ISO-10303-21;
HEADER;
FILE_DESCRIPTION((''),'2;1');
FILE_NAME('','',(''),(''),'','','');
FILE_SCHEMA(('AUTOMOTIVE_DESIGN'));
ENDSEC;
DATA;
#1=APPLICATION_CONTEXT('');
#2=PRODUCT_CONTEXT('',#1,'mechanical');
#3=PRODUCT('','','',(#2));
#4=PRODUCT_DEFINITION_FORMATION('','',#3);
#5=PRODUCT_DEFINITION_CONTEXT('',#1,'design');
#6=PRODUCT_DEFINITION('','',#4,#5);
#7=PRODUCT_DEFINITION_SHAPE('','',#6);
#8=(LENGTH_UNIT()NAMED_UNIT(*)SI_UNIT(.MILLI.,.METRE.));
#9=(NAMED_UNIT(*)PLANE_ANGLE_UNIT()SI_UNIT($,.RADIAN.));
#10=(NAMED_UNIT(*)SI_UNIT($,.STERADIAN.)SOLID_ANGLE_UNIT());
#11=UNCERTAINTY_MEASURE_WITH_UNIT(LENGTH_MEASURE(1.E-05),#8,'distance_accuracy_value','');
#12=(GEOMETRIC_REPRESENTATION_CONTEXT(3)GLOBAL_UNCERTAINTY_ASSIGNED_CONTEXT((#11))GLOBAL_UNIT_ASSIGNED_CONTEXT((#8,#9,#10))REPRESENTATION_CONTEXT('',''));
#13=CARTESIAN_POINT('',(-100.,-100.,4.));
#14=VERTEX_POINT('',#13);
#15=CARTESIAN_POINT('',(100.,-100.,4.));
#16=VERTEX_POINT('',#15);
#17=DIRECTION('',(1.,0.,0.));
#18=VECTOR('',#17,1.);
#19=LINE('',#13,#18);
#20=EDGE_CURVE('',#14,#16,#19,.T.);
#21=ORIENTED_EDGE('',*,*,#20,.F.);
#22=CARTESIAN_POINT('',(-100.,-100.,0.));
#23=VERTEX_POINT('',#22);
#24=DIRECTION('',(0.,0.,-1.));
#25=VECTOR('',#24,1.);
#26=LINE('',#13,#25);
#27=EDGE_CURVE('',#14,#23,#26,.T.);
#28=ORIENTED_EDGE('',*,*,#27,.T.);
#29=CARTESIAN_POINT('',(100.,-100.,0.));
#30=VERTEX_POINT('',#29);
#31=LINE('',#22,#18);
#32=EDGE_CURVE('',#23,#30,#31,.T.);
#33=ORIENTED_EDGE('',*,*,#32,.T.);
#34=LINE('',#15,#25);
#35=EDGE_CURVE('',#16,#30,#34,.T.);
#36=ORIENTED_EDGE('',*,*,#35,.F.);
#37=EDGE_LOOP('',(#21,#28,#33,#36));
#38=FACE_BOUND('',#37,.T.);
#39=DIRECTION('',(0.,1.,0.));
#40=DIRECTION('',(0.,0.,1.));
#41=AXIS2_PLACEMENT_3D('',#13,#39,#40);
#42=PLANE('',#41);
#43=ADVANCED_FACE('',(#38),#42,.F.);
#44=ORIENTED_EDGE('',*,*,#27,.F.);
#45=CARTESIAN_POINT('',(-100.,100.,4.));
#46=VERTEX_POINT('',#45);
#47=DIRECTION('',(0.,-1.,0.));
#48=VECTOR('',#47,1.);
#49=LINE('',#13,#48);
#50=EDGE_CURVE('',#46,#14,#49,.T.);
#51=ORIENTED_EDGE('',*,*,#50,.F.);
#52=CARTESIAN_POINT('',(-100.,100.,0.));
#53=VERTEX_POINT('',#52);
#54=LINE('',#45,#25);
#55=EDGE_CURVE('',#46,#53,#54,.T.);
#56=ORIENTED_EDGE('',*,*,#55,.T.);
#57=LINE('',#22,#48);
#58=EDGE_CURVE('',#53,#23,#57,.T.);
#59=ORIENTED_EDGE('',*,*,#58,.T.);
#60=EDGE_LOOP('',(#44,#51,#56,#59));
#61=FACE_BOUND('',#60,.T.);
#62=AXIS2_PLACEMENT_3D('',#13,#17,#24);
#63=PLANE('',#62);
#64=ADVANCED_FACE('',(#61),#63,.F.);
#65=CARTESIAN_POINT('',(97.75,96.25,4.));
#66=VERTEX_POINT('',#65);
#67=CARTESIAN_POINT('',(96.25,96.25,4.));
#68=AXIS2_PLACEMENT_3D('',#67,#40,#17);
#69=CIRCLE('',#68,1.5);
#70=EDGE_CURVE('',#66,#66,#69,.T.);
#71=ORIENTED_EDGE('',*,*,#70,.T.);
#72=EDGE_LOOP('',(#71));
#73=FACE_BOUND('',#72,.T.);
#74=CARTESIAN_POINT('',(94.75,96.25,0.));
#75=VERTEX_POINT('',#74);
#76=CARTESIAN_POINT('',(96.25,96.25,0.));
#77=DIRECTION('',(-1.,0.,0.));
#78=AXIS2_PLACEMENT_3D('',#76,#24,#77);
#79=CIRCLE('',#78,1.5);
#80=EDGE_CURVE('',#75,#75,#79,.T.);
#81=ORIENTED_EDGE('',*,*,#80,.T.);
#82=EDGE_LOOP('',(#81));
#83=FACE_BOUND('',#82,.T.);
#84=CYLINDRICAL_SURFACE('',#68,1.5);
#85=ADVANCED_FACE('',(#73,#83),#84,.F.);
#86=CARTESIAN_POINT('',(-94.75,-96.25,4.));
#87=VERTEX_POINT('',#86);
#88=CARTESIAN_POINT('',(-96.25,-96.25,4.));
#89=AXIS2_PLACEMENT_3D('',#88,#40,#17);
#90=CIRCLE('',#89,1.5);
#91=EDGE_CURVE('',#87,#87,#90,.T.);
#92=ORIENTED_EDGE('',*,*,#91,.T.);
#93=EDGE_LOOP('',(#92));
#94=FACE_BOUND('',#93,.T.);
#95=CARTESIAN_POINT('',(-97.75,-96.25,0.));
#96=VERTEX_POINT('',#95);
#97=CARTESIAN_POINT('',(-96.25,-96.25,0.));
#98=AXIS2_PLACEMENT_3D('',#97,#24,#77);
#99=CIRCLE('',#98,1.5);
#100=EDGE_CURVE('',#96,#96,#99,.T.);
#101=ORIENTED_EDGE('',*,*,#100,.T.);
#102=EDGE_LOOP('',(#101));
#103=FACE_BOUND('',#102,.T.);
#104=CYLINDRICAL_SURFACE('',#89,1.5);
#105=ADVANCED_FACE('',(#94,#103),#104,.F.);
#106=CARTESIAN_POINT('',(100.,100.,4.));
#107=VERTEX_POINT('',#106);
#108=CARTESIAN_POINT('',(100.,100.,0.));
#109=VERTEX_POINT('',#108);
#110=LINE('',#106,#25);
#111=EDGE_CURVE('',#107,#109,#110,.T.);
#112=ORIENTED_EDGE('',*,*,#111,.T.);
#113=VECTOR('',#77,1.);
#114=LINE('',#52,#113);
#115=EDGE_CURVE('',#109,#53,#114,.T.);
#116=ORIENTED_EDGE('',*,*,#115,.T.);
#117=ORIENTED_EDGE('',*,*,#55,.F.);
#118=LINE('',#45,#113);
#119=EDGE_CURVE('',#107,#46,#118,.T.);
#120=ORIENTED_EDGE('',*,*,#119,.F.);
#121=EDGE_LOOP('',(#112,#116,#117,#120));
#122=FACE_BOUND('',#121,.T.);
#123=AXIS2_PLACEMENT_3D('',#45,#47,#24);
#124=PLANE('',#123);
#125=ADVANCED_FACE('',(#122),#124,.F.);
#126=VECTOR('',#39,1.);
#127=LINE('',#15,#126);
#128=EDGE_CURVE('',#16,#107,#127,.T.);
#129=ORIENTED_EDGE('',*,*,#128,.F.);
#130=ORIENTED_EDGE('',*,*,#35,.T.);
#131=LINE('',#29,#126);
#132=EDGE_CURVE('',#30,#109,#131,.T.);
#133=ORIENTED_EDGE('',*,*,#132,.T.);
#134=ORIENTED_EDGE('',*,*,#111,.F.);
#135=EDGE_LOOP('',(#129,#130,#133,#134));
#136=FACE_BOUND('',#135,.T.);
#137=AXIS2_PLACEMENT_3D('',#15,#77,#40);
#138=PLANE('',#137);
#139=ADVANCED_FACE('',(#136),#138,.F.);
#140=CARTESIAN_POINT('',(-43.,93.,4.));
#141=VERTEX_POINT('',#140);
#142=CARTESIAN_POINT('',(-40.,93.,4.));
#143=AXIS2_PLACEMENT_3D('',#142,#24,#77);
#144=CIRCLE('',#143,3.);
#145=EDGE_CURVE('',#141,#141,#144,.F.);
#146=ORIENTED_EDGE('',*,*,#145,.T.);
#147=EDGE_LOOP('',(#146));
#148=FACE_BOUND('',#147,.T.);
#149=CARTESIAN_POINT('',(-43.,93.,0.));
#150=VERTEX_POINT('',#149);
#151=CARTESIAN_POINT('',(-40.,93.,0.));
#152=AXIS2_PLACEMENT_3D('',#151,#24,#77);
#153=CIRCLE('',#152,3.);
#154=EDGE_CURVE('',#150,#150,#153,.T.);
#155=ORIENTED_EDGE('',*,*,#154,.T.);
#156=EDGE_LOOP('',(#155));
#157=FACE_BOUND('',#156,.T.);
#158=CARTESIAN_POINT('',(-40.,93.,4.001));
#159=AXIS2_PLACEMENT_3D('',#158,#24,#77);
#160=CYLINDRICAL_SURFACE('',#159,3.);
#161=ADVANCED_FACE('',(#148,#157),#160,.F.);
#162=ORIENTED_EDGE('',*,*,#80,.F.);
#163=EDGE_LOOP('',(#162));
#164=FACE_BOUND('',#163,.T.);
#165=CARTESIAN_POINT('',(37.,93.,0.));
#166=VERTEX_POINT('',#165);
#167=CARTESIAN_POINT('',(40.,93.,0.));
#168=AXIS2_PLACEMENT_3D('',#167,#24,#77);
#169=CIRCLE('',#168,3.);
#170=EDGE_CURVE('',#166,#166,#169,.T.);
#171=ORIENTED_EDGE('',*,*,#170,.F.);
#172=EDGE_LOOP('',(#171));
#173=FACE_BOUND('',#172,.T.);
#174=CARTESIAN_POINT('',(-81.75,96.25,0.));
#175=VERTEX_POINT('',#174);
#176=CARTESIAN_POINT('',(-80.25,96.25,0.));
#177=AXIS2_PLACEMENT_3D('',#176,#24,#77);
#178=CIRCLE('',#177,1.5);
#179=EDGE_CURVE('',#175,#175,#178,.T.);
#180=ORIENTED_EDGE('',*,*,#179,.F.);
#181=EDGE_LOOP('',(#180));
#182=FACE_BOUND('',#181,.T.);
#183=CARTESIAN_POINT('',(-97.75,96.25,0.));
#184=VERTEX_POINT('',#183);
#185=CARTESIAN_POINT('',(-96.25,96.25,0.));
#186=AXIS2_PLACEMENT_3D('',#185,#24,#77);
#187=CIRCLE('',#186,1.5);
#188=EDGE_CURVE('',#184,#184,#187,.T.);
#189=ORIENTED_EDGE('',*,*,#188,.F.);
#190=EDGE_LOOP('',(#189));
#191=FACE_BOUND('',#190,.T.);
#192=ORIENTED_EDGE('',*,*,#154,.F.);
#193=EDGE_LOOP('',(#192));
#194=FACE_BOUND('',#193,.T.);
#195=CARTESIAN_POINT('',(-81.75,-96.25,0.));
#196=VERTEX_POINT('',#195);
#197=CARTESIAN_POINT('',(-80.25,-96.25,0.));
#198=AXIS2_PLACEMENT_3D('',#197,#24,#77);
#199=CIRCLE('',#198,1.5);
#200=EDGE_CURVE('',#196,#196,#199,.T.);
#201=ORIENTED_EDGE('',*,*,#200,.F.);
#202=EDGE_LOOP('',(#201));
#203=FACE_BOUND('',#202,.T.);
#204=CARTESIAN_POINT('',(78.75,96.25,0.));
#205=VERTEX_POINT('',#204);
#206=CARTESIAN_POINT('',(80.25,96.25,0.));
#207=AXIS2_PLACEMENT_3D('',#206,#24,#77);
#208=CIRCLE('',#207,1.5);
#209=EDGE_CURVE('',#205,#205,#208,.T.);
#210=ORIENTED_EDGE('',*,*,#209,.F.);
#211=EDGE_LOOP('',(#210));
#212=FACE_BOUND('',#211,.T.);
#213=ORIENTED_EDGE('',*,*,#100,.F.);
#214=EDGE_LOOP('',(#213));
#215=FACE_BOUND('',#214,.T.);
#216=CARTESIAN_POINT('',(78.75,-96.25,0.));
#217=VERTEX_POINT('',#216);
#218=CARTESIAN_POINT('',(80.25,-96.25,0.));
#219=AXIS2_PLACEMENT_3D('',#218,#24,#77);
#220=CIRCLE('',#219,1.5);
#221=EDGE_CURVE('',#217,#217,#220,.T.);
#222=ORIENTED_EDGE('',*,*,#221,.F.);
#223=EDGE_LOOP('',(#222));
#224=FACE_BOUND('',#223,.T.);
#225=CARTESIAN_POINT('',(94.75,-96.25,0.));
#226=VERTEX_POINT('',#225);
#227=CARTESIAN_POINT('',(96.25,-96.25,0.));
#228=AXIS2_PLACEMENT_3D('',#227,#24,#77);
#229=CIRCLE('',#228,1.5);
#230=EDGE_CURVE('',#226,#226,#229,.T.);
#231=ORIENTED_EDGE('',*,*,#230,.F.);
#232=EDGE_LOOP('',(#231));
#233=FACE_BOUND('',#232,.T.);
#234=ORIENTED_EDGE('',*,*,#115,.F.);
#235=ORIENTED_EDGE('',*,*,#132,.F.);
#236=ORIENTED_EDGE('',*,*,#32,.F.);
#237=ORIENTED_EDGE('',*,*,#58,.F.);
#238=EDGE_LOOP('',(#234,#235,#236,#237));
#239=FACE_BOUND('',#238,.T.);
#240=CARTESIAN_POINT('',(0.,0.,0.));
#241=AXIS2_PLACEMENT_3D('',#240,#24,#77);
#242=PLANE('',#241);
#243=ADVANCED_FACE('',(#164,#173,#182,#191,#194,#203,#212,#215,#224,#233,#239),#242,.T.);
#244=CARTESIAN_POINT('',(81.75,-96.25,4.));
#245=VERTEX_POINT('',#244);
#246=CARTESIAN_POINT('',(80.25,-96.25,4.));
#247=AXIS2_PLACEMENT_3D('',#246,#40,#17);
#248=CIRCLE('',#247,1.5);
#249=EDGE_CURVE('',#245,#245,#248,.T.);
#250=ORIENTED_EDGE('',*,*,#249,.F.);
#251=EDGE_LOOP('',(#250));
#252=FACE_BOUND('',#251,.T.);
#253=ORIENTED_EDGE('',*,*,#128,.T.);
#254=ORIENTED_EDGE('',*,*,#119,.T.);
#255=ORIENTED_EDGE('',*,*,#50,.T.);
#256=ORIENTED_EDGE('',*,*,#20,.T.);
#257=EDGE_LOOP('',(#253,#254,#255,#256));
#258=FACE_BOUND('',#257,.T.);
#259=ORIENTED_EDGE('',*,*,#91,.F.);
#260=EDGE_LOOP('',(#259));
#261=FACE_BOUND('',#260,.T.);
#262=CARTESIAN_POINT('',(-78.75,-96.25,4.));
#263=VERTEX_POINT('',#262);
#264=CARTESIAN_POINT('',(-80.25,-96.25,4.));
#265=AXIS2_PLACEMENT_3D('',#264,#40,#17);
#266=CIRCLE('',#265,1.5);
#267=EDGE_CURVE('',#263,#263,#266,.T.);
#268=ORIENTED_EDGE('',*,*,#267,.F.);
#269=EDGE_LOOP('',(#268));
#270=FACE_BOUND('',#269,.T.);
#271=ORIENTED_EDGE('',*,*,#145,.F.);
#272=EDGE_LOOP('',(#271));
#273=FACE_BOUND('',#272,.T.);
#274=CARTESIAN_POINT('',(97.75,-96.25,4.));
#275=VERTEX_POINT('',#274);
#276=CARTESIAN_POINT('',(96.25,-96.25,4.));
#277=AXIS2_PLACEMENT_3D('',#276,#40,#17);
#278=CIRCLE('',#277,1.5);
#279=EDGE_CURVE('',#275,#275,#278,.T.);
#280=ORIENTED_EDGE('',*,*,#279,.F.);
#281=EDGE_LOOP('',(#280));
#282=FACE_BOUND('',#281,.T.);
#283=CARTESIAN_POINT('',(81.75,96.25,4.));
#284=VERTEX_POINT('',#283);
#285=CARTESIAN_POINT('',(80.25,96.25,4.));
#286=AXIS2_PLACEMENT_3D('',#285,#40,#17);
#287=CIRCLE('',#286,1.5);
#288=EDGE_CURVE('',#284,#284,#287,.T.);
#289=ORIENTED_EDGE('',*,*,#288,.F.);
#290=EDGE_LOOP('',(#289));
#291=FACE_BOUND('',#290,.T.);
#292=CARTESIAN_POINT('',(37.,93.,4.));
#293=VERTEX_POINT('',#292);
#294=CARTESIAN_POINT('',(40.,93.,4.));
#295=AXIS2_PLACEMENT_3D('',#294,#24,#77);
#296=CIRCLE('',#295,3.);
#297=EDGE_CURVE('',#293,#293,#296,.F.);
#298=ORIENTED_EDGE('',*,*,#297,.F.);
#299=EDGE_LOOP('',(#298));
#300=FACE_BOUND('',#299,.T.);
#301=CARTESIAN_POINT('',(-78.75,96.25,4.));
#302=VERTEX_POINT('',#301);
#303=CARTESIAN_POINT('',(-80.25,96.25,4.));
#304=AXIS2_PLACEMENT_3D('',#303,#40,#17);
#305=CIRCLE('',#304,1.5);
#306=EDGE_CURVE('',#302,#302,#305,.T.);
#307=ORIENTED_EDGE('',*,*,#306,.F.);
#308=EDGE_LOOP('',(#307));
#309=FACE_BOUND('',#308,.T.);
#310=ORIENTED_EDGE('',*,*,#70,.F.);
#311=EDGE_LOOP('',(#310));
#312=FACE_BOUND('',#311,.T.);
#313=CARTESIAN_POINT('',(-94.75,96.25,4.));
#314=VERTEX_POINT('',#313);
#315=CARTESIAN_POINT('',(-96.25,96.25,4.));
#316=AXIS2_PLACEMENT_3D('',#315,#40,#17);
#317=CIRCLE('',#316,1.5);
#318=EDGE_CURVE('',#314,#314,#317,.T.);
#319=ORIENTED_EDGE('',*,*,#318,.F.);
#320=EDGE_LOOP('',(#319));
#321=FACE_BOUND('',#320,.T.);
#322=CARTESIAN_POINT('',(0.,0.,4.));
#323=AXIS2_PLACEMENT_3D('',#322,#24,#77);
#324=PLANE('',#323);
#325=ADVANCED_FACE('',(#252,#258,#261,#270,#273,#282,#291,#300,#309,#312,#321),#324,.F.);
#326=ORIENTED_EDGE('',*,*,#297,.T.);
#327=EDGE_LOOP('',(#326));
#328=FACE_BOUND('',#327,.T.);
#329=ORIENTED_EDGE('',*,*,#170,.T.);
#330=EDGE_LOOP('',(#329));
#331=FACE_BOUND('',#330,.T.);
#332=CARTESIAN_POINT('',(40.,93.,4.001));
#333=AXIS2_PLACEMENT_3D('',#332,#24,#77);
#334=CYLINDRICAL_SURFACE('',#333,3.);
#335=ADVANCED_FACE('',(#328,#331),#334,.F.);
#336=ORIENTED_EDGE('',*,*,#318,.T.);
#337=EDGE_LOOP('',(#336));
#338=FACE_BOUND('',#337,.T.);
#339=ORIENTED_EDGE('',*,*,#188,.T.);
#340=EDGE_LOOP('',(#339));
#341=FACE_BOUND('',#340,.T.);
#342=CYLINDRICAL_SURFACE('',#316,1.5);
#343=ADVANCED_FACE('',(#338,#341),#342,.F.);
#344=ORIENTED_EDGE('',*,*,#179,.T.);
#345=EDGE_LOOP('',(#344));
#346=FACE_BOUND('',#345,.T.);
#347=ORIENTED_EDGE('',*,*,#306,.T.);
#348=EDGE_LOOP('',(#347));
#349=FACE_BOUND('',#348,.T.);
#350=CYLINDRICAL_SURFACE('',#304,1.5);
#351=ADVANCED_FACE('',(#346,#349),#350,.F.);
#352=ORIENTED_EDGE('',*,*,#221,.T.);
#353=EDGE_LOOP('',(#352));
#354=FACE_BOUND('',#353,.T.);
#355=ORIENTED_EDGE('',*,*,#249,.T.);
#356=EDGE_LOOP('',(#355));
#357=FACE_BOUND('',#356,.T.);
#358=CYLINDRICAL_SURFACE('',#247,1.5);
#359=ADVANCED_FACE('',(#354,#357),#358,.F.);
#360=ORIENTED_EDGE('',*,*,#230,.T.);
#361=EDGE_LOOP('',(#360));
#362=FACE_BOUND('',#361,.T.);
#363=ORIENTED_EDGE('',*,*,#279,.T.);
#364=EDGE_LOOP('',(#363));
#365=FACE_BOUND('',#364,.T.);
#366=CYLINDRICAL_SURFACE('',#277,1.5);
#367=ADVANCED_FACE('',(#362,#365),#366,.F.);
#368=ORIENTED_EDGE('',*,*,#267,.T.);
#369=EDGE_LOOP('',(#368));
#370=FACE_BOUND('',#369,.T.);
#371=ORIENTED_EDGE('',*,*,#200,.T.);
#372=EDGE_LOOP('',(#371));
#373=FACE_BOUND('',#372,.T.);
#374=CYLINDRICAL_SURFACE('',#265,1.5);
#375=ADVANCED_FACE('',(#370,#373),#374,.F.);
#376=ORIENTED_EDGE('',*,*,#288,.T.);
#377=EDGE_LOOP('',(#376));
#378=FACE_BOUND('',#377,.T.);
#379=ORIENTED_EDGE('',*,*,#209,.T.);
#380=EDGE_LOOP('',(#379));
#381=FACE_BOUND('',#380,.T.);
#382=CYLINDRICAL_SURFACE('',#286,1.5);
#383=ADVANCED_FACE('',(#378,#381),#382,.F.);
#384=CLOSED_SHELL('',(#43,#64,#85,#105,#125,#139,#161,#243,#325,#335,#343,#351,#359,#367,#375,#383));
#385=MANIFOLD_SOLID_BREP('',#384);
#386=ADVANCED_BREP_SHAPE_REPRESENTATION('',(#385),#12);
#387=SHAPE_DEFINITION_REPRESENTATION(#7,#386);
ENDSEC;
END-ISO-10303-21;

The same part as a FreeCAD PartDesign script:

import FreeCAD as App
import Part
import Sketcher

V = App.Vector
Q = App.Units.Quantity


def add_polygon(sketch, points):
    """Adds a closed chain of lines whose ends are joined by coincident constraints."""
    first, n = sketch.GeometryCount, len(points)
    for a, b in zip(points, points[1:] + points[:1]):
        sketch.addGeometry(Part.LineSegment(App.Vector(*a, 0), App.Vector(*b, 0)), False)
    for i in range(n):
        sketch.addConstraint(Sketcher.Constraint("Coincident", first + i, 2, first + (i + 1) % n, 1))

doc = App.newDocument("Part")
body = doc.addObject("PartDesign::Body", "Body")

# Sketch on XY plane
sketch1 = body.newObject("Sketcher::SketchObject", "Sketch")
sketch1.AttachmentSupport = (doc.getObject("XY_Plane"), [""])
sketch1.MapMode = "FlatFace"
add_polygon(sketch1, [(-100, 100), (-100, -100), (100, -100), (100, 100)])  # lines 0-3
sketch1.addConstraint(Sketcher.Constraint("Vertical", 0))
sketch1.addConstraint(Sketcher.Constraint("Horizontal", 1))
sketch1.addConstraint(Sketcher.Constraint("Vertical", 2))
sketch1.addConstraint(Sketcher.Constraint("Horizontal", 3))
sketch1.addConstraint(Sketcher.Constraint("Symmetric", 0, 2, 2, 2, -1, 1))
sketch1.addConstraint(Sketcher.Constraint("Equal", 3, 0))
sketch1.addConstraint(Sketcher.Constraint("DistanceX", 1, 1, 1, 2, Q("200 mm")))
pad1 = body.newObject("PartDesign::Pad", "Pad")
pad1.Profile = sketch1
pad1.Length = 4

# Sketch on XY plane
sketch2 = body.newObject("Sketcher::SketchObject", "Sketch001")
sketch2.AttachmentSupport = (doc.getObject("XY_Plane"), [""])
sketch2.MapMode = "FlatFace"
sketch2.AttachmentOffset = App.Placement(V(0, 0, 4), App.Rotation())
sketch2.addGeometry(Part.Circle(V(-80.2, 96.2, 0), V(0, 0, 1), 1.5), False)
sketch2.addGeometry(Part.Circle(V(-96.2, 96.2, 0), V(0, 0, 1), 1.5), False)
sketch2.addConstraint(Sketcher.Constraint("Equal", 0, 1))
sketch2.addConstraint(Sketcher.Constraint("Horizontal", 0, 3, 1, 3))
sketch2.addConstraint(Sketcher.Constraint("Diameter", 0, Q("3 mm")))
sketch2.addConstraint(Sketcher.Constraint("DistanceX", 1, 3, 0, 3, Q("16 mm")))
sketch2.addConstraint(Sketcher.Constraint("DistanceX", 0, 3, -1, 1, Q("80.25 mm")))
sketch2.addConstraint(Sketcher.Constraint("DistanceY", -1, 1, 0, 3, Q("96.25 mm")))
doc.recompute()
hole = body.newObject("PartDesign::Hole", "Hole")
hole.Profile = sketch2
hole.ThreadType = "None"
hole.Diameter = 3
hole.DepthType = "Dimension"
hole.Depth = 4.001
hole.DrillPoint = "Flat"
doc.recompute()

mirrored = body.newObject("PartDesign::Mirrored", "Mirrored")
mirrored.Originals = [hole]
mirrored.MirrorPlane = (doc.getObject("YZ_Plane"), [""])
body.Tip = mirrored
doc.recompute()

mirrored2 = body.newObject("PartDesign::Mirrored", "Mirrored001")
mirrored2.Originals = [hole]
mirrored2.MirrorPlane = (doc.getObject("XZ_Plane"), [""])
body.Tip = mirrored2

# Sketch on XY plane
sketch3 = body.newObject("Sketcher::SketchObject", "Sketch002")
sketch3.AttachmentSupport = (doc.getObject("XY_Plane"), [""])
sketch3.MapMode = "FlatFace"
sketch3.AttachmentOffset = App.Placement(V(0, 0, 4), App.Rotation())
sketch3.addGeometry(Part.Circle(V(80.2, -96.2, 0), V(0, 0, 1), 1.5), False)
sketch3.addGeometry(Part.Circle(V(96.2, -96.2, 0), V(0, 0, 1), 1.5), False)
sketch3.addConstraint(Sketcher.Constraint("Equal", 0, 1))
sketch3.addConstraint(Sketcher.Constraint("Horizontal", 0, 3, 1, 3))
sketch3.addConstraint(Sketcher.Constraint("Diameter", 0, Q("3 mm")))
sketch3.addConstraint(Sketcher.Constraint("DistanceX", 0, 3, 1, 3, Q("16 mm")))
sketch3.addConstraint(Sketcher.Constraint("DistanceX", -1, 1, 0, 3, Q("80.25 mm")))
sketch3.addConstraint(Sketcher.Constraint("DistanceY", 0, 3, -1, 1, Q("96.25 mm")))
doc.recompute()
hole2 = body.newObject("PartDesign::Hole", "Hole001")
hole2.Profile = sketch3
hole2.ThreadType = "None"
hole2.Diameter = 3
hole2.DepthType = "Dimension"
hole2.Depth = 4.001
hole2.DrillPoint = "Flat"

# Sketch on XY plane
sketch4 = body.newObject("Sketcher::SketchObject", "Sketch003")
sketch4.AttachmentSupport = (doc.getObject("XY_Plane"), [""])
sketch4.MapMode = "FlatFace"
sketch4.addGeometry(Part.Circle(V(40, 93, 0), V(0, 0, 1), 3), False)
sketch4.addConstraint(Sketcher.Constraint("Diameter", 0, Q("6 mm")))
sketch4.addConstraint(Sketcher.Constraint("DistanceX", -1, 1, 0, 3, Q("40 mm")))
sketch4.addConstraint(Sketcher.Constraint("DistanceY", -1, 1, 0, 3, Q("93 mm")))
pocket1 = body.newObject("PartDesign::Pocket", "Pocket")
pocket1.Profile = sketch4
pocket1.Type = "UpToFirst"
pocket1.Reversed = True

# Sketch on XY plane
sketch5 = body.newObject("Sketcher::SketchObject", "Sketch004")
sketch5.AttachmentSupport = (doc.getObject("XY_Plane"), [""])
sketch5.MapMode = "FlatFace"
sketch5.addGeometry(Part.Circle(V(-40, 93, 0), V(0, 0, 1), 3), False)
sketch5.addConstraint(Sketcher.Constraint("Diameter", 0, Q("6 mm")))
sketch5.addConstraint(Sketcher.Constraint("DistanceX", 0, 3, -1, 1, Q("40 mm")))
sketch5.addConstraint(Sketcher.Constraint("DistanceY", -1, 1, 0, 3, Q("93 mm")))
pocket2 = body.newObject("PartDesign::Pocket", "Pocket001")
pocket2.Profile = sketch5
pocket2.Type = "UpToFirst"
pocket2.Reversed = True

doc.recompute()
